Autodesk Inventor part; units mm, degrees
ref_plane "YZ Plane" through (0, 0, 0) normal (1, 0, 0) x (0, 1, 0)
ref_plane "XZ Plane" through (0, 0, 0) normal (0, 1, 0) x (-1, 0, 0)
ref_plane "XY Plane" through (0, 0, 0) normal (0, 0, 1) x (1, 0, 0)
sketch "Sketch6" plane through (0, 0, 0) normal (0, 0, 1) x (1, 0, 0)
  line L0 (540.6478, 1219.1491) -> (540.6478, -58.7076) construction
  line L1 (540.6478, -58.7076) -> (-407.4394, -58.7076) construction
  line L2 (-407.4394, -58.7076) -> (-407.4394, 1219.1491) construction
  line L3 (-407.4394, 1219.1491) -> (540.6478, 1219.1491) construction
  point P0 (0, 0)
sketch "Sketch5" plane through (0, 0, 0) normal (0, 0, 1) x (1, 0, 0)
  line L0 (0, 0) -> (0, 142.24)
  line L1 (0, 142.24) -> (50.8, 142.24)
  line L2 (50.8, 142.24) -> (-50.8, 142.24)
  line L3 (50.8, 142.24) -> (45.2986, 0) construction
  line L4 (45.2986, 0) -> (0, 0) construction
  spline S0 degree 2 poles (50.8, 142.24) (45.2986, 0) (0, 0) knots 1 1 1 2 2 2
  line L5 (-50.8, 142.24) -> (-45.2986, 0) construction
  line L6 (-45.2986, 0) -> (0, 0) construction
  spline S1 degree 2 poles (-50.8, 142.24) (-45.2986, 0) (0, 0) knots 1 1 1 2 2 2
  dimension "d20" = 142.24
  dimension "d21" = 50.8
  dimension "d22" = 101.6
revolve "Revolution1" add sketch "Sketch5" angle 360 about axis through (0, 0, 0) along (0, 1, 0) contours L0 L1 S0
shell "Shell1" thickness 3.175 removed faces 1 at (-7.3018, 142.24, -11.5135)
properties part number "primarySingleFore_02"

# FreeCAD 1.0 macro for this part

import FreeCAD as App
import Part
import Sketcher
from FreeCAD import Vector
Q = App.Units.Quantity


def faces_at(feature, points):
    """Names of the faces that lie closest to the given points."""
    faces = feature.Shape.Faces
    near = lambda p: min(range(len(faces)), key=lambda i: faces[i].distToShape(Part.Vertex(*p))[0])
    return sorted({f"Face{near(p) + 1}" for p in points})

doc = App.newDocument("Part")
body = doc.addObject("PartDesign::Body", "Body")

# Sketch on XY plane
sketch1 = body.newObject("Sketcher::SketchObject", "Sketch")
sketch1.AttachmentSupport = (doc.getObject("XY_Plane"), [""])
sketch1.MapMode = "FlatFace"
sketch1.addGeometry([
    Part.LineSegment(Vector(0, 142.24, 0), Vector(0, 0, 0)),
    Part.BSplineCurve([Vector(50.8, 142.24, 0), Vector(45.2986, 0, 0), Vector(0, 0, 0)], [3, 3], [1, 2], False, 2, [1, 1, 1], False),
    Part.LineSegment(Vector(50.8, 142.24, 0), Vector(0, 142.24, 0)),
], False)
sketch1.addConstraint([
    Sketcher.Constraint("Block", 1),
    Sketcher.Constraint("Coincident", 0, 2, 1, 2),
    Sketcher.Constraint("Coincident", 1, 1, 2, 1),
    Sketcher.Constraint("Coincident", 2, 2, 0, 1),
    Sketcher.Constraint("Vertical", 0),
    Sketcher.Constraint("Horizontal", 2),
])
revolution = body.newObject("PartDesign::Revolution", "Revolution")
revolution.Profile = sketch1
revolution.ReferenceAxis = (sketch1, ["V_Axis"])
revolution.Angle = 360
doc.recompute()

thickness = body.newObject("PartDesign::Thickness", "Thickness")
thickness.Base = (revolution, faces_at(revolution, [(-7.302, 142.24, -11.514)]))
thickness.Value = Q("0.125 in")
thickness.Reversed = True
thickness.Join = "Intersection"

doc.recompute()
